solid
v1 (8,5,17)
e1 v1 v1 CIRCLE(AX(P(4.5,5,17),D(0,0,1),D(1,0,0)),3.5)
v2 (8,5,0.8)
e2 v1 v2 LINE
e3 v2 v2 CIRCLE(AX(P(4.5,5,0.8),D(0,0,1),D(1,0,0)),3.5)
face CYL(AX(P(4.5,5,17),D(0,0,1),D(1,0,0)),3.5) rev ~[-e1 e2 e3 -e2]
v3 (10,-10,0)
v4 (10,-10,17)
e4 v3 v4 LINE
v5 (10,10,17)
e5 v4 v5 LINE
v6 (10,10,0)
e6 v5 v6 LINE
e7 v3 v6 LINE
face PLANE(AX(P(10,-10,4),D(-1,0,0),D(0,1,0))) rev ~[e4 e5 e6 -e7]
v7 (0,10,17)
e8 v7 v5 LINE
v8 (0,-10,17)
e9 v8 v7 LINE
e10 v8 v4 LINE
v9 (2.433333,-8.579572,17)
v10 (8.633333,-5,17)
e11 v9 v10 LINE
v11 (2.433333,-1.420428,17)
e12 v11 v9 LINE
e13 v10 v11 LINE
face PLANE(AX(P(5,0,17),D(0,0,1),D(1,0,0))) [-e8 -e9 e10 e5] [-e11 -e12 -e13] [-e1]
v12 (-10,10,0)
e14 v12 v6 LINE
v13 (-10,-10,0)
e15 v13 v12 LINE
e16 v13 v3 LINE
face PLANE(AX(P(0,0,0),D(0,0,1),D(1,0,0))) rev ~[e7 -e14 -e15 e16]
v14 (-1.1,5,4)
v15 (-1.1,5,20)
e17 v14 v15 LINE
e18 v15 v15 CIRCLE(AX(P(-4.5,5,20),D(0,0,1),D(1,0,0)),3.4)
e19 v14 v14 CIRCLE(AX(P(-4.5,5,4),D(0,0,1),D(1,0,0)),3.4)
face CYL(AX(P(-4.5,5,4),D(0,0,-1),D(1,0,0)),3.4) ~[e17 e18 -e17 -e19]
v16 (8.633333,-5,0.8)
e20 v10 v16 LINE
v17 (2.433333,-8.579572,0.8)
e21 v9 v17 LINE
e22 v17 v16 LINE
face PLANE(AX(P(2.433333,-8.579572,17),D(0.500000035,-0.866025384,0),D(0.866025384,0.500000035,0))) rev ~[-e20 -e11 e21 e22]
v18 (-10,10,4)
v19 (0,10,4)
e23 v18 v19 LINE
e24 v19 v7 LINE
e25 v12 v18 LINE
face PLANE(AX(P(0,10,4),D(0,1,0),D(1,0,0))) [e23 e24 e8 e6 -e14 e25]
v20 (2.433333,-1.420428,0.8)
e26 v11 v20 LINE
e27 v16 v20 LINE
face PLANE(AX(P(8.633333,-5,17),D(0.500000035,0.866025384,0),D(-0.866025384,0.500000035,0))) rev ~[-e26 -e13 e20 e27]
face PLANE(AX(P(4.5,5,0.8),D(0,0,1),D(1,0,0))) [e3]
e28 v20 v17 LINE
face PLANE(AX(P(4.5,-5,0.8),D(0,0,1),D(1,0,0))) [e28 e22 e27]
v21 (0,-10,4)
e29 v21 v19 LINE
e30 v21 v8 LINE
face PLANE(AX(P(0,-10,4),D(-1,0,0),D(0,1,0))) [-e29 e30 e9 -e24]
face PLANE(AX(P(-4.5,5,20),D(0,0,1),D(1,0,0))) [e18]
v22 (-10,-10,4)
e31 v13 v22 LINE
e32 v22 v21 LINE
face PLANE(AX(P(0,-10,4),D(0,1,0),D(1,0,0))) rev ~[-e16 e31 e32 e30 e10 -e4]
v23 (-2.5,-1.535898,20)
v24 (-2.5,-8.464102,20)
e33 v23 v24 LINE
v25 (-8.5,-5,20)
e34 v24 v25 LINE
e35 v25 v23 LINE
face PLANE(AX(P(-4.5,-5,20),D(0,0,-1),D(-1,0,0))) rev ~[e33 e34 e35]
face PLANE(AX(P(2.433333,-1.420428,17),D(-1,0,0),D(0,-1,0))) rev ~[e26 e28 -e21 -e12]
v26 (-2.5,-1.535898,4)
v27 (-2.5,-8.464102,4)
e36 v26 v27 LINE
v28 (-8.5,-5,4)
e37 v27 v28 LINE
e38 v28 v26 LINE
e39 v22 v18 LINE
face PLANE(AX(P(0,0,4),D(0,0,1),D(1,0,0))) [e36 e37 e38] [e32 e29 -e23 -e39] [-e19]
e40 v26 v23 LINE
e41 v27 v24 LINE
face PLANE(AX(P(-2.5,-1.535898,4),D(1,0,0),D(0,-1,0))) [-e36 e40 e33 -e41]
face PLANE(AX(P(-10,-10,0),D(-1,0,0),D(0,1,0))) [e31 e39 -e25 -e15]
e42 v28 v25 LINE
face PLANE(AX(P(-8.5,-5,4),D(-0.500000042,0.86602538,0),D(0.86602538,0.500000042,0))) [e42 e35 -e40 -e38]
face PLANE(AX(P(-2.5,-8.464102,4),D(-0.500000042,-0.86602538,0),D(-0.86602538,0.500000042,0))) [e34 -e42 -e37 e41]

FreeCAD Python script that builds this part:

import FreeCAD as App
import Part
import Sketcher

V = App.Vector
Q = App.Units.Quantity


def add_polygon(sketch, points):
    """Adds a closed chain of lines whose ends are joined by coincident constraints."""
    first, n = sketch.GeometryCount, len(points)
    for a, b in zip(points, points[1:] + points[:1]):
        sketch.addGeometry(Part.LineSegment(App.Vector(*a, 0), App.Vector(*b, 0)), False)
    for i in range(n):
        sketch.addConstraint(Sketcher.Constraint("Coincident", first + i, 2, first + (i + 1) % n, 1))

doc = App.newDocument("Part")
body = doc.addObject("PartDesign::Body", "Body")

sketch1 = doc.addObject("Sketcher::SketchObject", "Sketch")
body.addObject(sketch1)
sketch1.AttachmentSupport = (doc.XY_Plane, [""])
sketch1.MapMode = "FlatFace"
add_polygon(sketch1, [(-10, 10), (-10, -10), (10, -10), (10, 10)])
sketch1.addConstraint(Sketcher.Constraint("Vertical", 0))
sketch1.addConstraint(Sketcher.Constraint("Horizontal", 1))
sketch1.addConstraint(Sketcher.Constraint("Vertical", 2))
sketch1.addConstraint(Sketcher.Constraint("Horizontal", 3))
sketch1.addConstraint(Sketcher.Constraint("Symmetric", 0, 2, 2, 2, -1, 1))
sketch1.addConstraint(Sketcher.Constraint("Equal", 3, 0))
sketch1.addConstraint(Sketcher.Constraint("DistanceX", 1, 1, 1, 2, Q("20 mm")))
pad1 = doc.addObject("PartDesign::Pad", "Pad")
body.addObject(pad1)
pad1.Profile = sketch1
pad1.Length = 4

sketch2 = doc.addObject("Sketcher::SketchObject", "Sketch001")
body.addObject(sketch2)
sketch2.AttachmentSupport = (doc.XY_Plane, [""])
sketch2.MapMode = "FlatFace"
sketch2.AttachmentOffset = App.Placement(V(0, 0, 4), App.Rotation())
add_polygon(sketch2, [(0, 10), (0, -10), (10, -10), (10, 10)])
sketch2.addConstraint(Sketcher.Constraint("Vertical", 0))
sketch2.addConstraint(Sketcher.Constraint("Horizontal", 1))
sketch2.addConstraint(Sketcher.Constraint("Vertical", 2))
sketch2.addConstraint(Sketcher.Constraint("Horizontal", 3))
sketch2.addConstraint(Sketcher.Constraint("Symmetric", 0, 2, 3, 2, -1, 1))
sketch2.addConstraint(Sketcher.Constraint("DistanceX", 1, 1, 1, 2, Q("10 mm")))
sketch2.addConstraint(Sketcher.Constraint("DistanceY", 0, 2, 0, 1, Q("20 mm")))
pad2 = doc.addObject("PartDesign::Pad", "Pad001")
body.addObject(pad2)
pad2.Profile = sketch2
pad2.Length = 13

sketch3 = doc.addObject("Sketcher::SketchObject", "Sketch002")
body.addObject(sketch3)
sketch3.AttachmentSupport = (doc.XY_Plane, [""])
sketch3.MapMode = "FlatFace"
sketch3.AttachmentOffset = App.Placement(V(0, 0, 4), App.Rotation())
sketch3.addGeometry(Part.Circle(V(-4.5, 5, 0), V(0, 0, 1), 3.4), False)
add_polygon(sketch3, [(-2.5, -1.5), (-8.5, -5), (-2.5, -8.5)])
sketch3.addConstraint(Sketcher.Constraint("Vertical", 3))
sketch3.addConstraint(Sketcher.Constraint("Equal", 1, 2))
sketch3.addConstraint(Sketcher.Constraint("Diameter", 0, Q("6.8 mm")))
sketch3.addConstraint(Sketcher.Constraint("Angle", 1, Q("-149.999997 deg")))
sketch3.addConstraint(Sketcher.Constraint("DistanceY", -1, 1, 0, 3, Q("5 mm")))
sketch3.addConstraint(Sketcher.Constraint("DistanceY", 1, 2, -1, 1, Q("5 mm")))
sketch3.addConstraint(Sketcher.Constraint("DistanceX", 1, 2, 0, 3, Q("4 mm")))
sketch3.addConstraint(Sketcher.Constraint("DistanceX", 1, 2, 2, 2, Q("6 mm")))
sketch3.addConstraint(Sketcher.Constraint("DistanceX", 0, 3, -1, 1, Q("4.5 mm")))
pad3 = doc.addObject("PartDesign::Pad", "Pad002")
body.addObject(pad3)
pad3.Profile = sketch3
pad3.Length = 16

sketch4 = doc.addObject("Sketcher::SketchObject", "Sketch003")
body.addObject(sketch4)
sketch4.AttachmentSupport = (doc.XY_Plane, [""])
sketch4.MapMode = "FlatFace"
sketch4.AttachmentOffset = App.Placement(V(0, 0, 17), App.Rotation())
sketch4.addGeometry(Part.Circle(V(4.5, 5, 0), V(0, 0, 1), 3.5), False)
add_polygon(sketch4, [(2.4, -1.4), (2.4, -8.6), (8.6, -5)])
sketch4.addConstraint(Sketcher.Constraint("Vertical", 1))
sketch4.addConstraint(Sketcher.Constraint("Equal", 2, 3))
sketch4.addConstraint(Sketcher.Constraint("Diameter", 0, Q("7 mm")))
sketch4.addConstraint(Sketcher.Constraint("Angle", 2, Q("30.000002 deg")))
sketch4.addConstraint(Sketcher.Constraint("DistanceY", -1, 1, 0, 3, Q("5 mm")))
sketch4.addConstraint(Sketcher.Constraint("DistanceY", 2, 2, -1, 1, Q("5 mm")))
sketch4.addConstraint(Sketcher.Constraint("DistanceX", -1, 1, 0, 3, Q("4.5 mm")))
sketch4.addConstraint(Sketcher.Constraint("DistanceX", 1, 2, 2, 2, Q("6.2 mm")))
sketch4.addConstraint(Sketcher.Constraint("DistanceX", -1, 1, 1, 2, Q("2.433333 mm")))
pocket1 = doc.addObject("PartDesign::Pocket", "Pocket")
body.addObject(pocket1)
pocket1.Profile = sketch4
pocket1.Length = 16.2

doc.recompute()
